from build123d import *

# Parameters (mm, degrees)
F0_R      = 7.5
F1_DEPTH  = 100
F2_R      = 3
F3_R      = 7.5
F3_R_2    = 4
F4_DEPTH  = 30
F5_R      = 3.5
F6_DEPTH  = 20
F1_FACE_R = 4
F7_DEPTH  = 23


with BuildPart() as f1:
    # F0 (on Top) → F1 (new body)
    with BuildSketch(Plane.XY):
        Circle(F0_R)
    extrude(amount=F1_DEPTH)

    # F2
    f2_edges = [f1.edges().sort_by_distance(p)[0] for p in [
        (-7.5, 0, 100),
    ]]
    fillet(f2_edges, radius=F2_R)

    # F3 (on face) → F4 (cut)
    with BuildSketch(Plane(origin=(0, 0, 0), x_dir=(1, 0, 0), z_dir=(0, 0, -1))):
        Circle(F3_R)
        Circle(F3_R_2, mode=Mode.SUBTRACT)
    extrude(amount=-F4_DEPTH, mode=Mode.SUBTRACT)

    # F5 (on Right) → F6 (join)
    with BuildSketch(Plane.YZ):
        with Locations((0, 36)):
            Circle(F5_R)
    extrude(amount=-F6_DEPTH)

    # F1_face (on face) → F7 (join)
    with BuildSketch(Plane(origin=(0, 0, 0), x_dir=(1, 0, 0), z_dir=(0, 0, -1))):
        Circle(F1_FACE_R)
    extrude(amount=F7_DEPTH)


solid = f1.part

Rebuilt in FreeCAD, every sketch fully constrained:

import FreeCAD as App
import Part
import Sketcher


def edges_at(feature, points):
    """Names of the edges that pass closest to the given points."""
    edges = feature.Shape.Edges
    near = lambda p: min(range(len(edges)), key=lambda i: edges[i].distToShape(Part.Vertex(*p))[0])
    return sorted({f"Edge{near(p) + 1}" for p in points})

doc = App.newDocument("Part")
params = doc.addObject("Spreadsheet::Sheet", "Params")
for row, (alias, value) in enumerate([
    ("sketch1_diameter", "15 mm"),
    ("pad1_length", "100 mm"),
    ("fillet_radius", "3 mm"),
    ("sketch2_diameter", "15 mm"),
    ("sketch2_diameter2", "8 mm"),
    ("pocket1_length", "30 mm"),
    ("sketch3_diameter", "7 mm"),
    ("pad2_length", "20 mm"),
    ("sketch4_diameter", "8 mm"),
    ("pad3_length", "23 mm"),
], start=1):
    params.set(f"A{row}", alias)
    params.set(f"B{row}", "=" + value)
    params.setAlias(f"B{row}", alias)

body = doc.addObject("PartDesign::Body", "Body")

# Sketch on XY plane
sketch1 = body.newObject("Sketcher::SketchObject", "Sketch")
sketch1.AttachmentSupport = (doc.getObject("XY_Plane"), [""])
sketch1.MapMode = "FlatFace"
sketch1.addGeometry(Part.Circle(App.Vector(0, 0, 0), App.Vector(0, 0, 1), 7.5), False)
sketch1.addConstraint(Sketcher.Constraint("Coincident", 0, 3, -1, 1))
sketch1.addConstraint(Sketcher.Constraint("Diameter", 0, 15.0))
sketch1.setExpression("Constraints[1]", "Params.sketch1_diameter")
pad1 = body.newObject("PartDesign::Pad", "Pad")
pad1.Profile = sketch1
pad1.setExpression("Length", "Params.pad1_length")
doc.recompute()

fillet = body.newObject("PartDesign::Fillet", "Fillet")
fillet.Base = (pad1, edges_at(pad1, [(-7.5, 0, 100)]))
fillet.setExpression("Radius", "Params.fillet_radius")

# Sketch on XY plane
sketch2 = body.newObject("Sketcher::SketchObject", "Sketch001")
sketch2.AttachmentSupport = (doc.getObject("XY_Plane"), [""])
sketch2.MapMode = "FlatFace"
sketch2.addGeometry(Part.Circle(App.Vector(0, 0, 0), App.Vector(0, 0, 1), 7.5), False)
sketch2.addGeometry(Part.Circle(App.Vector(0, 0, 0), App.Vector(0, 0, 1), 4), False)
sketch2.addConstraint(Sketcher.Constraint("Coincident", 0, 3, -1, 1))
sketch2.addConstraint(Sketcher.Constraint("Coincident", 1, 3, -1, 1))
sketch2.addConstraint(Sketcher.Constraint("Diameter", 0, 15.0))
sketch2.addConstraint(Sketcher.Constraint("Diameter", 1, 8.0))
sketch2.setExpression("Constraints[2]", "Params.sketch2_diameter")
sketch2.setExpression("Constraints[3]", "Params.sketch2_diameter2")
pocket1 = body.newObject("PartDesign::Pocket", "Pocket")
pocket1.Profile = sketch2
pocket1.setExpression("Length", "Params.pocket1_length")
pocket1.Reversed = True

# Sketch on YZ plane
sketch3 = body.newObject("Sketcher::SketchObject", "Sketch002")
sketch3.AttachmentSupport = (doc.getObject("YZ_Plane"), [""])
sketch3.MapMode = "FlatFace"
sketch3.addGeometry(Part.Circle(App.Vector(0, 36, 0), App.Vector(0, 0, 1), 3.5), False)
sketch3.addConstraint(Sketcher.Constraint("PointOnObject", 0, 3, -2))
sketch3.addConstraint(Sketcher.Constraint("Diameter", 0, 7.0))
sketch3.addConstraint(Sketcher.Constraint("DistanceY", -1, 1, 0, 3, 36.0))
sketch3.setExpression("Constraints[1]", "Params.sketch3_diameter")
pad2 = body.newObject("PartDesign::Pad", "Pad001")
pad2.Profile = sketch3
pad2.setExpression("Length", "Params.pad2_length")
pad2.Reversed = True

# Sketch on XY plane
sketch4 = body.newObject("Sketcher::SketchObject", "Sketch003")
sketch4.AttachmentSupport = (doc.getObject("XY_Plane"), [""])
sketch4.MapMode = "FlatFace"
sketch4.addGeometry(Part.Circle(App.Vector(0, 0, 0), App.Vector(0, 0, 1), 4), False)
sketch4.addConstraint(Sketcher.Constraint("Coincident", 0, 3, -1, 1))
sketch4.addConstraint(Sketcher.Constraint("Diameter", 0, 8.0))
sketch4.setExpression("Constraints[1]", "Params.sketch4_diameter")
pad3 = body.newObject("PartDesign::Pad", "Pad002")
pad3.Profile = sketch4
pad3.setExpression("Length", "Params.pad3_length")
pad3.Reversed = True

doc.recompute()
